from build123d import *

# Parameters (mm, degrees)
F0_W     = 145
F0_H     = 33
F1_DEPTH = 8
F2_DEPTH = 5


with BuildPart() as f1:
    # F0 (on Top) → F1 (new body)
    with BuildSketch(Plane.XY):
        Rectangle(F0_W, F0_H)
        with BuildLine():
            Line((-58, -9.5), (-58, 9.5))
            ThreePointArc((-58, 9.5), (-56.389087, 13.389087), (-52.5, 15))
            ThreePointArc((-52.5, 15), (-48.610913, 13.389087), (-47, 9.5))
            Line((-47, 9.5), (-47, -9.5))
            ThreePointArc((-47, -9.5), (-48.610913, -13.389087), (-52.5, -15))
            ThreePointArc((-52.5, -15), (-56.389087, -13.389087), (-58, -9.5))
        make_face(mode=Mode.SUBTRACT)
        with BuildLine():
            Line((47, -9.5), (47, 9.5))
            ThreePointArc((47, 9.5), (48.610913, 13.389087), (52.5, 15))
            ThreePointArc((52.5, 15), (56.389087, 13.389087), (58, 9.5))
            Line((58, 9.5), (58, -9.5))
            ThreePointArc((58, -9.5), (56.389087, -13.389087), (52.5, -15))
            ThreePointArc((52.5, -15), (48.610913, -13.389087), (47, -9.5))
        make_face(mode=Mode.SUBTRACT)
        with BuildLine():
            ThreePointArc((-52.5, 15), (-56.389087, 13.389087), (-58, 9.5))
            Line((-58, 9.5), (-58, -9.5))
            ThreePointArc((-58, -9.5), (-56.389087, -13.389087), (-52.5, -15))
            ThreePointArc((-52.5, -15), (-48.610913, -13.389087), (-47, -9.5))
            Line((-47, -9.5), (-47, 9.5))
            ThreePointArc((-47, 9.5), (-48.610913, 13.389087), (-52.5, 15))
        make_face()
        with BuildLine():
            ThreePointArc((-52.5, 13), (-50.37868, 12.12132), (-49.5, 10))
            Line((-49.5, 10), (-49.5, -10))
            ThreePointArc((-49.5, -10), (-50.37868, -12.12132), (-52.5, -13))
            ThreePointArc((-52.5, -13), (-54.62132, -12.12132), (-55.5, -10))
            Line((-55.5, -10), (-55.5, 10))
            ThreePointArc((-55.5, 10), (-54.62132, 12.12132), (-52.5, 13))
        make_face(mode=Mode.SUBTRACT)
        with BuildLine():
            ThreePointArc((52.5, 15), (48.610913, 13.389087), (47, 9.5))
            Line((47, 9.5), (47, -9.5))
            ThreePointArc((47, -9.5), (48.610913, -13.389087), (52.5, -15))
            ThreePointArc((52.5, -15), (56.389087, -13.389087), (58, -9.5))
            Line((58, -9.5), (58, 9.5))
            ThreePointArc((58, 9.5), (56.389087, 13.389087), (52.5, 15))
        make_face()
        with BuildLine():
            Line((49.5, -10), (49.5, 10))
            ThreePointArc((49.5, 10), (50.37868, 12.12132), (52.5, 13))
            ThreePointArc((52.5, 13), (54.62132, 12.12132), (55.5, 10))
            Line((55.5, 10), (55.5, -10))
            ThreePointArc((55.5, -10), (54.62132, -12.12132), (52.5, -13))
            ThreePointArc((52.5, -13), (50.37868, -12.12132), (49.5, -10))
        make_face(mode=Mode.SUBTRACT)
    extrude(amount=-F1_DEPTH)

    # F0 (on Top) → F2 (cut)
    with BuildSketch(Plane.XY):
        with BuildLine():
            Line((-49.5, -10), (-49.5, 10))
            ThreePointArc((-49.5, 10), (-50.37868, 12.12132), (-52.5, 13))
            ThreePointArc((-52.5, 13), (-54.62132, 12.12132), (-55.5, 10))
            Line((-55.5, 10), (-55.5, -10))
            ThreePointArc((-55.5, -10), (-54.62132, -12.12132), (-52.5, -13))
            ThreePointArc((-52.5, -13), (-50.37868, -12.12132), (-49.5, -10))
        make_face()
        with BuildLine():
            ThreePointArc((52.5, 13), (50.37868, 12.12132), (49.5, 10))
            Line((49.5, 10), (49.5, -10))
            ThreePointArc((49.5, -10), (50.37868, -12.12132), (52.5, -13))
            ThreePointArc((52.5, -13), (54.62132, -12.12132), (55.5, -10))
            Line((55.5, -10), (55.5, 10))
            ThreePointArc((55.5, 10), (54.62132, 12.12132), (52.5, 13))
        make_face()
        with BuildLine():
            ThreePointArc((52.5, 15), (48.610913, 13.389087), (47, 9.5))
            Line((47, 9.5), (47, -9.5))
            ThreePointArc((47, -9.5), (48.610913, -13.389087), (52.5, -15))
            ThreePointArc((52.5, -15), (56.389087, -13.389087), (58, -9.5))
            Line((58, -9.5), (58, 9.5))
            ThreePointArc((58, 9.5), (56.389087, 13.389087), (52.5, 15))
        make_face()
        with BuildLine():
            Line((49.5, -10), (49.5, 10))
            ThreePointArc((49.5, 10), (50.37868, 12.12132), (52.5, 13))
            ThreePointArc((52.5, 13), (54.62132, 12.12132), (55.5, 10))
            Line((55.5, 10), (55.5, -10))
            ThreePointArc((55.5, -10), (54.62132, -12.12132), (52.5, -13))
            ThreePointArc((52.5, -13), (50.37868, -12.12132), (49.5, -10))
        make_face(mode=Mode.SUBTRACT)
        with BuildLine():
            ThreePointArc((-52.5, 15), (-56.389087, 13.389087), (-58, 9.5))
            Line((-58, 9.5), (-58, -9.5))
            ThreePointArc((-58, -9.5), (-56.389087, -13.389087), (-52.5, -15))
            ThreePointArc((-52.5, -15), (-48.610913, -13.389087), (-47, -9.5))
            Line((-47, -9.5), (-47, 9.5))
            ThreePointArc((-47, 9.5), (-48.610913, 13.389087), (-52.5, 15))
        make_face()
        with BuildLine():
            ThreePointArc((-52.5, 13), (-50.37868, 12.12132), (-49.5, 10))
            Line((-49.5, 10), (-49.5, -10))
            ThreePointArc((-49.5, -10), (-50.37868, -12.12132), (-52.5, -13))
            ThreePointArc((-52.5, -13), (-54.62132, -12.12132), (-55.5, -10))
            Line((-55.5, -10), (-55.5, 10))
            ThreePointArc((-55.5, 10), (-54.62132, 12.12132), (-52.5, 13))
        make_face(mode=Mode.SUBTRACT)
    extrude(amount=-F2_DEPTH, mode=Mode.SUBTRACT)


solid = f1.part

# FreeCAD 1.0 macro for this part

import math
import FreeCAD as App
import Part
import Sketcher

V = App.Vector
Q = App.Units.Quantity


def add_polygon(sketch, points):
    """Adds a closed chain of lines whose ends are joined by coincident constraints."""
    first, n = sketch.GeometryCount, len(points)
    for a, b in zip(points, points[1:] + points[:1]):
        sketch.addGeometry(Part.LineSegment(App.Vector(*a, 0), App.Vector(*b, 0)), False)
    for i in range(n):
        sketch.addConstraint(Sketcher.Constraint("Coincident", first + i, 2, first + (i + 1) % n, 1))

doc = App.newDocument("Part")
body = doc.addObject("PartDesign::Body", "Body")

# Sketch on XY plane
sketch1 = body.newObject("Sketcher::SketchObject", "Sketch")
sketch1.AttachmentSupport = (doc.getObject("XY_Plane"), [""])
sketch1.MapMode = "FlatFace"
add_polygon(sketch1, [(-72.5, 16.5), (-72.5, -16.5), (72.5, -16.5), (72.5, 16.5)])  # lines 0-3
sketch1.addGeometry(Part.ArcOfCircle(Part.Circle(V(-52.499999, 9.999999, 0), V(0, 0, 1), 3.000001), math.radians(90.000022), math.radians(179.999978)), False)  # 4
sketch1.addGeometry(Part.ArcOfCircle(Part.Circle(V(-52.500001, 9.999999, 0), V(0, 0, 1), 3.000001), math.radians(0.000022), math.radians(89.999978)), False)  # 5
sketch1.addGeometry(Part.LineSegment(V(-49.5, 10, 0), V(-49.5, -10, 0)), False)  # 6
sketch1.addGeometry(Part.ArcOfCircle(Part.Circle(V(-52.500001, -9.999999, 0), V(0, 0, 1), 3.000001), math.radians(-89.999978), math.radians(-0.000022)), False)  # 7
sketch1.addGeometry(Part.ArcOfCircle(Part.Circle(V(-52.499999, -9.999999, 0), V(0, 0, 1), 3.000001), math.radians(-179.999978), math.radians(-90.000022)), False)  # 8
sketch1.addGeometry(Part.LineSegment(V(-55.5, -10, 0), V(-55.5, 10, 0)), False)  # 9
sketch1.addGeometry(Part.ArcOfCircle(Part.Circle(V(52.500001, -9.999999, 0), V(0, 0, 1), 3.000001), math.radians(-179.999978), math.radians(-90.000022)), False)  # 10
sketch1.addGeometry(Part.LineSegment(V(49.5, -10, 0), V(49.5, 10, 0)), False)  # 11
sketch1.addGeometry(Part.ArcOfCircle(Part.Circle(V(52.500001, 9.999999, 0), V(0, 0, 1), 3.000001), math.radians(90.000022), math.radians(179.999978)), False)  # 12
sketch1.addGeometry(Part.ArcOfCircle(Part.Circle(V(52.499999, 9.999999, 0), V(0, 0, 1), 3.000001), math.radians(0.000022), math.radians(89.999978)), False)  # 13
sketch1.addGeometry(Part.LineSegment(V(55.5, 10, 0), V(55.5, -10, 0)), False)  # 14
sketch1.addGeometry(Part.ArcOfCircle(Part.Circle(V(52.499999, -9.999999, 0), V(0, 0, 1), 3.000001), math.radians(-89.999978), math.radians(-0.000022)), False)  # 15
sketch1.addConstraint([
    Sketcher.Constraint("Tangent", 4, 1, 5, 2),
    Sketcher.Constraint("Tangent", 5, 1, 6, 1),
    Sketcher.Constraint("Tangent", 6, 2, 7, 2),
    Sketcher.Constraint("Tangent", 7, 1, 8, 2),
    Sketcher.Constraint("Tangent", 8, 1, 9, 1),
    Sketcher.Constraint("Tangent", 9, 2, 4, 2),
    Sketcher.Constraint("Tangent", 10, 1, 11, 1),
    Sketcher.Constraint("Tangent", 11, 2, 12, 2),
    Sketcher.Constraint("Tangent", 12, 1, 13, 2),
    Sketcher.Constraint("Tangent", 13, 1, 14, 1),
    Sketcher.Constraint("Tangent", 14, 2, 15, 2),
    Sketcher.Constraint("Tangent", 15, 1, 10, 2),
    Sketcher.Constraint("Vertical", 0),
    Sketcher.Constraint("Horizontal", 1),
    Sketcher.Constraint("Vertical", 2),
    Sketcher.Constraint("Horizontal", 3),
    Sketcher.Constraint("Vertical", 6),
    Sketcher.Constraint("Vertical", 9),
    Sketcher.Constraint("Vertical", 11),
    Sketcher.Constraint("Vertical", 14),
    Sketcher.Constraint("Equal", 4, 5),
    Sketcher.Constraint("Equal", 5, 7),
    Sketcher.Constraint("Equal", 8, 10),
    Sketcher.Constraint("Equal", 10, 12),
    Sketcher.Constraint("Equal", 12, 13),
    Sketcher.Constraint("Symmetric", 4, 3, 10, 3, -1, 1),
    Sketcher.Constraint("Symmetric", 0, 2, 2, 2, -1, 1),
    Sketcher.Constraint("Symmetric", 7, 1, 12, 1, -1, 1),
    Sketcher.Constraint("Symmetric", 4, 1, 12, 1, -2),
    Sketcher.Constraint("Vertical", 8, 3, 4, 1),
    Sketcher.Constraint("Vertical", 12, 1, 15, 1),
    Sketcher.Constraint("Radius", 4, Q("3.000001 mm")),
    Sketcher.Constraint("DistanceX", 1, 1, 1, 2, Q("145 mm")),
    Sketcher.Constraint("DistanceY", 0, 2, 0, 1, Q("33 mm")),
    Sketcher.Constraint("DistanceY", 6, 2, 6, 1, Q("20 mm")),
    Sketcher.Constraint("DistanceX", 8, 3, 10, 3, Q("105 mm")),
])
pad1 = body.newObject("PartDesign::Pad", "Pad")
pad1.Profile = sketch1
pad1.Length = 8
pad1.Reversed = True

# Sketch on XY plane
sketch2 = body.newObject("Sketcher::SketchObject", "Sketch001")
sketch2.AttachmentSupport = (doc.getObject("XY_Plane"), [""])
sketch2.MapMode = "FlatFace"
sketch2.addGeometry([
    Part.ArcOfCircle(Part.Circle(V(-52.499999, 9.499999, 0), V(0, 0, 1), 5.500001), math.radians(90.000011), math.radians(179.999989)),  # 0
    Part.LineSegment(V(-58, 9.5, 0), V(-58, -9.5, 0)),  # 1
    Part.ArcOfCircle(Part.Circle(V(-52.499999, -9.499999, 0), V(0, 0, 1), 5.500001), math.radians(-179.999989), math.radians(-90.000011)),  # 2
    Part.ArcOfCircle(Part.Circle(V(-52.500001, -9.499999, 0), V(0, 0, 1), 5.500001), math.radians(-89.999989), math.radians(-0.000011)),  # 3
    Part.LineSegment(V(-47, -9.5, 0), V(-47, 9.5, 0)),  # 4
    Part.ArcOfCircle(Part.Circle(V(-52.500001, 9.499999, 0), V(0, 0, 1), 5.500001), math.radians(0.000011), math.radians(89.999989)),  # 5
    Part.ArcOfCircle(Part.Circle(V(-52.499999, 9.999999, 0), V(0, 0, 1), 3.000001), math.radians(90.000022), math.radians(179.999978)),  # 6
    Part.ArcOfCircle(Part.Circle(V(-52.500001, 9.999999, 0), V(0, 0, 1), 3.000001), math.radians(0.000022), math.radians(89.999978)),  # 7
    Part.LineSegment(V(-49.5, 10, 0), V(-49.5, -10, 0)),  # 8
    Part.ArcOfCircle(Part.Circle(V(-52.500001, -9.999999, 0), V(0, 0, 1), 3.000001), math.radians(-89.999978), math.radians(-0.000022)),  # 9
    Part.ArcOfCircle(Part.Circle(V(-52.499999, -9.999999, 0), V(0, 0, 1), 3.000001), math.radians(-179.999978), math.radians(-90.000022)),  # 10
    Part.LineSegment(V(-55.5, -10, 0), V(-55.5, 10, 0)),  # 11
    Part.ArcOfCircle(Part.Circle(V(52.500001, 9.499999, 0), V(0, 0, 1), 5.500001), math.radians(90.000011), math.radians(179.999989)),  # 12
    Part.LineSegment(V(47, 9.5, 0), V(47, -9.5, 0)),  # 13
    Part.ArcOfCircle(Part.Circle(V(52.500001, -9.499999, 0), V(0, 0, 1), 5.500001), math.radians(-179.999989), math.radians(-90.000011)),  # 14
    Part.ArcOfCircle(Part.Circle(V(52.499999, -9.499999, 0), V(0, 0, 1), 5.500001), math.radians(-89.999989), math.radians(-0.000011)),  # 15
    Part.LineSegment(V(58, -9.5, 0), V(58, 9.5, 0)),  # 16
    Part.ArcOfCircle(Part.Circle(V(52.499999, 9.499999, 0), V(0, 0, 1), 5.500001), math.radians(0.000011), math.radians(89.999989)),  # 17
    Part.ArcOfCircle(Part.Circle(V(52.500001, -9.999999, 0), V(0, 0, 1), 3.000001), math.radians(-179.999978), math.radians(-90.000022)),  # 18
    Part.LineSegment(V(49.5, -10, 0), V(49.5, 10, 0)),  # 19
    Part.ArcOfCircle(Part.Circle(V(52.500001, 9.999999, 0), V(0, 0, 1), 3.000001), math.radians(90.000022), math.radians(179.999978)),  # 20
    Part.ArcOfCircle(Part.Circle(V(52.499999, 9.999999, 0), V(0, 0, 1), 3.000001), math.radians(0.000022), math.radians(89.999978)),  # 21
    Part.LineSegment(V(55.5, 10, 0), V(55.5, -10, 0)),  # 22
    Part.ArcOfCircle(Part.Circle(V(52.499999, -9.999999, 0), V(0, 0, 1), 3.000001), math.radians(-89.999978), math.radians(-0.000022)),  # 23
], False)
sketch2.addConstraint([
    Sketcher.Constraint("Tangent", 0, 2, 1, 1),
    Sketcher.Constraint("Tangent", 1, 2, 2, 1),
    Sketcher.Constraint("Tangent", 2, 2, 3, 1),
    Sketcher.Constraint("Tangent", 3, 2, 4, 1),
    Sketcher.Constraint("Tangent", 4, 2, 5, 1),
    Sketcher.Constraint("Tangent", 5, 2, 0, 1),
    Sketcher.Constraint("Tangent", 6, 1, 7, 2),
    Sketcher.Constraint("Tangent", 7, 1, 8, 1),
    Sketcher.Constraint("Tangent", 8, 2, 9, 2),
    Sketcher.Constraint("Tangent", 9, 1, 10, 2),
    Sketcher.Constraint("Tangent", 10, 1, 11, 1),
    Sketcher.Constraint("Tangent", 11, 2, 6, 2),
    Sketcher.Constraint("Tangent", 12, 2, 13, 1),
    Sketcher.Constraint("Tangent", 13, 2, 14, 1),
    Sketcher.Constraint("Tangent", 14, 2, 15, 1),
    Sketcher.Constraint("Tangent", 15, 2, 16, 1),
    Sketcher.Constraint("Tangent", 16, 2, 17, 1),
    Sketcher.Constraint("Tangent", 17, 2, 12, 1),
    Sketcher.Constraint("Tangent", 18, 1, 19, 1),
    Sketcher.Constraint("Tangent", 19, 2, 20, 2),
    Sketcher.Constraint("Tangent", 20, 1, 21, 2),
    Sketcher.Constraint("Tangent", 21, 1, 22, 1),
    Sketcher.Constraint("Tangent", 22, 2, 23, 2),
    Sketcher.Constraint("Tangent", 23, 1, 18, 2),
    Sketcher.Constraint("Vertical", 1),
    Sketcher.Constraint("Vertical", 4),
    Sketcher.Constraint("Vertical", 8),
    Sketcher.Constraint("Vertical", 11),
    Sketcher.Constraint("Vertical", 13),
    Sketcher.Constraint("Vertical", 16),
    Sketcher.Constraint("Vertical", 19),
    Sketcher.Constraint("Vertical", 22),
    Sketcher.Constraint("Equal", 0, 2),
    Sketcher.Constraint("Equal", 2, 3),
    Sketcher.Constraint("Equal", 6, 7),
    Sketcher.Constraint("Equal", 7, 9),
    Sketcher.Constraint("Equal", 5, 12),
    Sketcher.Constraint("Equal", 12, 14),
    Sketcher.Constraint("Equal", 14, 15),
    Sketcher.Constraint("Equal", 10, 18),
    Sketcher.Constraint("Equal", 18, 20),
    Sketcher.Constraint("Equal", 20, 21),
    Sketcher.Constraint("Symmetric", 2, 3, 12, 3, -1, 1),
    Sketcher.Constraint("Symmetric", 6, 3, 18, 3, -1, 1),
    Sketcher.Constraint("Symmetric", 5, 2, 14, 2, -1, 1),
    Sketcher.Constraint("Symmetric", 9, 1, 20, 1, -1, 1),
    Sketcher.Constraint("Symmetric", 2, 2, 14, 2, -2),
    Sketcher.Constraint("Symmetric", 6, 1, 20, 1, -2),
    Sketcher.Constraint("Vertical", 2, 3, 6, 3),
    Sketcher.Constraint("Vertical", 10, 3, 2, 2),
    Sketcher.Constraint("Vertical", 5, 2, 6, 1),
    Sketcher.Constraint("Vertical", 14, 2, 17, 2),
    Sketcher.Constraint("Vertical", 20, 1, 23, 1),
    Sketcher.Constraint("Radius", 6, Q("3.000001 mm")),
    Sketcher.Constraint("Radius", 0, Q("5.500001 mm")),
    Sketcher.Constraint("DistanceY", 1, 2, 1, 1, Q("19 mm")),
    Sketcher.Constraint("DistanceY", 8, 2, 8, 1, Q("20 mm")),
    Sketcher.Constraint("DistanceX", 0, 2, -1, 1, Q("58 mm")),
])
pocket1 = body.newObject("PartDesign::Pocket", "Pocket")
pocket1.Profile = sketch2
pocket1.Length = 5

doc.recompute()
